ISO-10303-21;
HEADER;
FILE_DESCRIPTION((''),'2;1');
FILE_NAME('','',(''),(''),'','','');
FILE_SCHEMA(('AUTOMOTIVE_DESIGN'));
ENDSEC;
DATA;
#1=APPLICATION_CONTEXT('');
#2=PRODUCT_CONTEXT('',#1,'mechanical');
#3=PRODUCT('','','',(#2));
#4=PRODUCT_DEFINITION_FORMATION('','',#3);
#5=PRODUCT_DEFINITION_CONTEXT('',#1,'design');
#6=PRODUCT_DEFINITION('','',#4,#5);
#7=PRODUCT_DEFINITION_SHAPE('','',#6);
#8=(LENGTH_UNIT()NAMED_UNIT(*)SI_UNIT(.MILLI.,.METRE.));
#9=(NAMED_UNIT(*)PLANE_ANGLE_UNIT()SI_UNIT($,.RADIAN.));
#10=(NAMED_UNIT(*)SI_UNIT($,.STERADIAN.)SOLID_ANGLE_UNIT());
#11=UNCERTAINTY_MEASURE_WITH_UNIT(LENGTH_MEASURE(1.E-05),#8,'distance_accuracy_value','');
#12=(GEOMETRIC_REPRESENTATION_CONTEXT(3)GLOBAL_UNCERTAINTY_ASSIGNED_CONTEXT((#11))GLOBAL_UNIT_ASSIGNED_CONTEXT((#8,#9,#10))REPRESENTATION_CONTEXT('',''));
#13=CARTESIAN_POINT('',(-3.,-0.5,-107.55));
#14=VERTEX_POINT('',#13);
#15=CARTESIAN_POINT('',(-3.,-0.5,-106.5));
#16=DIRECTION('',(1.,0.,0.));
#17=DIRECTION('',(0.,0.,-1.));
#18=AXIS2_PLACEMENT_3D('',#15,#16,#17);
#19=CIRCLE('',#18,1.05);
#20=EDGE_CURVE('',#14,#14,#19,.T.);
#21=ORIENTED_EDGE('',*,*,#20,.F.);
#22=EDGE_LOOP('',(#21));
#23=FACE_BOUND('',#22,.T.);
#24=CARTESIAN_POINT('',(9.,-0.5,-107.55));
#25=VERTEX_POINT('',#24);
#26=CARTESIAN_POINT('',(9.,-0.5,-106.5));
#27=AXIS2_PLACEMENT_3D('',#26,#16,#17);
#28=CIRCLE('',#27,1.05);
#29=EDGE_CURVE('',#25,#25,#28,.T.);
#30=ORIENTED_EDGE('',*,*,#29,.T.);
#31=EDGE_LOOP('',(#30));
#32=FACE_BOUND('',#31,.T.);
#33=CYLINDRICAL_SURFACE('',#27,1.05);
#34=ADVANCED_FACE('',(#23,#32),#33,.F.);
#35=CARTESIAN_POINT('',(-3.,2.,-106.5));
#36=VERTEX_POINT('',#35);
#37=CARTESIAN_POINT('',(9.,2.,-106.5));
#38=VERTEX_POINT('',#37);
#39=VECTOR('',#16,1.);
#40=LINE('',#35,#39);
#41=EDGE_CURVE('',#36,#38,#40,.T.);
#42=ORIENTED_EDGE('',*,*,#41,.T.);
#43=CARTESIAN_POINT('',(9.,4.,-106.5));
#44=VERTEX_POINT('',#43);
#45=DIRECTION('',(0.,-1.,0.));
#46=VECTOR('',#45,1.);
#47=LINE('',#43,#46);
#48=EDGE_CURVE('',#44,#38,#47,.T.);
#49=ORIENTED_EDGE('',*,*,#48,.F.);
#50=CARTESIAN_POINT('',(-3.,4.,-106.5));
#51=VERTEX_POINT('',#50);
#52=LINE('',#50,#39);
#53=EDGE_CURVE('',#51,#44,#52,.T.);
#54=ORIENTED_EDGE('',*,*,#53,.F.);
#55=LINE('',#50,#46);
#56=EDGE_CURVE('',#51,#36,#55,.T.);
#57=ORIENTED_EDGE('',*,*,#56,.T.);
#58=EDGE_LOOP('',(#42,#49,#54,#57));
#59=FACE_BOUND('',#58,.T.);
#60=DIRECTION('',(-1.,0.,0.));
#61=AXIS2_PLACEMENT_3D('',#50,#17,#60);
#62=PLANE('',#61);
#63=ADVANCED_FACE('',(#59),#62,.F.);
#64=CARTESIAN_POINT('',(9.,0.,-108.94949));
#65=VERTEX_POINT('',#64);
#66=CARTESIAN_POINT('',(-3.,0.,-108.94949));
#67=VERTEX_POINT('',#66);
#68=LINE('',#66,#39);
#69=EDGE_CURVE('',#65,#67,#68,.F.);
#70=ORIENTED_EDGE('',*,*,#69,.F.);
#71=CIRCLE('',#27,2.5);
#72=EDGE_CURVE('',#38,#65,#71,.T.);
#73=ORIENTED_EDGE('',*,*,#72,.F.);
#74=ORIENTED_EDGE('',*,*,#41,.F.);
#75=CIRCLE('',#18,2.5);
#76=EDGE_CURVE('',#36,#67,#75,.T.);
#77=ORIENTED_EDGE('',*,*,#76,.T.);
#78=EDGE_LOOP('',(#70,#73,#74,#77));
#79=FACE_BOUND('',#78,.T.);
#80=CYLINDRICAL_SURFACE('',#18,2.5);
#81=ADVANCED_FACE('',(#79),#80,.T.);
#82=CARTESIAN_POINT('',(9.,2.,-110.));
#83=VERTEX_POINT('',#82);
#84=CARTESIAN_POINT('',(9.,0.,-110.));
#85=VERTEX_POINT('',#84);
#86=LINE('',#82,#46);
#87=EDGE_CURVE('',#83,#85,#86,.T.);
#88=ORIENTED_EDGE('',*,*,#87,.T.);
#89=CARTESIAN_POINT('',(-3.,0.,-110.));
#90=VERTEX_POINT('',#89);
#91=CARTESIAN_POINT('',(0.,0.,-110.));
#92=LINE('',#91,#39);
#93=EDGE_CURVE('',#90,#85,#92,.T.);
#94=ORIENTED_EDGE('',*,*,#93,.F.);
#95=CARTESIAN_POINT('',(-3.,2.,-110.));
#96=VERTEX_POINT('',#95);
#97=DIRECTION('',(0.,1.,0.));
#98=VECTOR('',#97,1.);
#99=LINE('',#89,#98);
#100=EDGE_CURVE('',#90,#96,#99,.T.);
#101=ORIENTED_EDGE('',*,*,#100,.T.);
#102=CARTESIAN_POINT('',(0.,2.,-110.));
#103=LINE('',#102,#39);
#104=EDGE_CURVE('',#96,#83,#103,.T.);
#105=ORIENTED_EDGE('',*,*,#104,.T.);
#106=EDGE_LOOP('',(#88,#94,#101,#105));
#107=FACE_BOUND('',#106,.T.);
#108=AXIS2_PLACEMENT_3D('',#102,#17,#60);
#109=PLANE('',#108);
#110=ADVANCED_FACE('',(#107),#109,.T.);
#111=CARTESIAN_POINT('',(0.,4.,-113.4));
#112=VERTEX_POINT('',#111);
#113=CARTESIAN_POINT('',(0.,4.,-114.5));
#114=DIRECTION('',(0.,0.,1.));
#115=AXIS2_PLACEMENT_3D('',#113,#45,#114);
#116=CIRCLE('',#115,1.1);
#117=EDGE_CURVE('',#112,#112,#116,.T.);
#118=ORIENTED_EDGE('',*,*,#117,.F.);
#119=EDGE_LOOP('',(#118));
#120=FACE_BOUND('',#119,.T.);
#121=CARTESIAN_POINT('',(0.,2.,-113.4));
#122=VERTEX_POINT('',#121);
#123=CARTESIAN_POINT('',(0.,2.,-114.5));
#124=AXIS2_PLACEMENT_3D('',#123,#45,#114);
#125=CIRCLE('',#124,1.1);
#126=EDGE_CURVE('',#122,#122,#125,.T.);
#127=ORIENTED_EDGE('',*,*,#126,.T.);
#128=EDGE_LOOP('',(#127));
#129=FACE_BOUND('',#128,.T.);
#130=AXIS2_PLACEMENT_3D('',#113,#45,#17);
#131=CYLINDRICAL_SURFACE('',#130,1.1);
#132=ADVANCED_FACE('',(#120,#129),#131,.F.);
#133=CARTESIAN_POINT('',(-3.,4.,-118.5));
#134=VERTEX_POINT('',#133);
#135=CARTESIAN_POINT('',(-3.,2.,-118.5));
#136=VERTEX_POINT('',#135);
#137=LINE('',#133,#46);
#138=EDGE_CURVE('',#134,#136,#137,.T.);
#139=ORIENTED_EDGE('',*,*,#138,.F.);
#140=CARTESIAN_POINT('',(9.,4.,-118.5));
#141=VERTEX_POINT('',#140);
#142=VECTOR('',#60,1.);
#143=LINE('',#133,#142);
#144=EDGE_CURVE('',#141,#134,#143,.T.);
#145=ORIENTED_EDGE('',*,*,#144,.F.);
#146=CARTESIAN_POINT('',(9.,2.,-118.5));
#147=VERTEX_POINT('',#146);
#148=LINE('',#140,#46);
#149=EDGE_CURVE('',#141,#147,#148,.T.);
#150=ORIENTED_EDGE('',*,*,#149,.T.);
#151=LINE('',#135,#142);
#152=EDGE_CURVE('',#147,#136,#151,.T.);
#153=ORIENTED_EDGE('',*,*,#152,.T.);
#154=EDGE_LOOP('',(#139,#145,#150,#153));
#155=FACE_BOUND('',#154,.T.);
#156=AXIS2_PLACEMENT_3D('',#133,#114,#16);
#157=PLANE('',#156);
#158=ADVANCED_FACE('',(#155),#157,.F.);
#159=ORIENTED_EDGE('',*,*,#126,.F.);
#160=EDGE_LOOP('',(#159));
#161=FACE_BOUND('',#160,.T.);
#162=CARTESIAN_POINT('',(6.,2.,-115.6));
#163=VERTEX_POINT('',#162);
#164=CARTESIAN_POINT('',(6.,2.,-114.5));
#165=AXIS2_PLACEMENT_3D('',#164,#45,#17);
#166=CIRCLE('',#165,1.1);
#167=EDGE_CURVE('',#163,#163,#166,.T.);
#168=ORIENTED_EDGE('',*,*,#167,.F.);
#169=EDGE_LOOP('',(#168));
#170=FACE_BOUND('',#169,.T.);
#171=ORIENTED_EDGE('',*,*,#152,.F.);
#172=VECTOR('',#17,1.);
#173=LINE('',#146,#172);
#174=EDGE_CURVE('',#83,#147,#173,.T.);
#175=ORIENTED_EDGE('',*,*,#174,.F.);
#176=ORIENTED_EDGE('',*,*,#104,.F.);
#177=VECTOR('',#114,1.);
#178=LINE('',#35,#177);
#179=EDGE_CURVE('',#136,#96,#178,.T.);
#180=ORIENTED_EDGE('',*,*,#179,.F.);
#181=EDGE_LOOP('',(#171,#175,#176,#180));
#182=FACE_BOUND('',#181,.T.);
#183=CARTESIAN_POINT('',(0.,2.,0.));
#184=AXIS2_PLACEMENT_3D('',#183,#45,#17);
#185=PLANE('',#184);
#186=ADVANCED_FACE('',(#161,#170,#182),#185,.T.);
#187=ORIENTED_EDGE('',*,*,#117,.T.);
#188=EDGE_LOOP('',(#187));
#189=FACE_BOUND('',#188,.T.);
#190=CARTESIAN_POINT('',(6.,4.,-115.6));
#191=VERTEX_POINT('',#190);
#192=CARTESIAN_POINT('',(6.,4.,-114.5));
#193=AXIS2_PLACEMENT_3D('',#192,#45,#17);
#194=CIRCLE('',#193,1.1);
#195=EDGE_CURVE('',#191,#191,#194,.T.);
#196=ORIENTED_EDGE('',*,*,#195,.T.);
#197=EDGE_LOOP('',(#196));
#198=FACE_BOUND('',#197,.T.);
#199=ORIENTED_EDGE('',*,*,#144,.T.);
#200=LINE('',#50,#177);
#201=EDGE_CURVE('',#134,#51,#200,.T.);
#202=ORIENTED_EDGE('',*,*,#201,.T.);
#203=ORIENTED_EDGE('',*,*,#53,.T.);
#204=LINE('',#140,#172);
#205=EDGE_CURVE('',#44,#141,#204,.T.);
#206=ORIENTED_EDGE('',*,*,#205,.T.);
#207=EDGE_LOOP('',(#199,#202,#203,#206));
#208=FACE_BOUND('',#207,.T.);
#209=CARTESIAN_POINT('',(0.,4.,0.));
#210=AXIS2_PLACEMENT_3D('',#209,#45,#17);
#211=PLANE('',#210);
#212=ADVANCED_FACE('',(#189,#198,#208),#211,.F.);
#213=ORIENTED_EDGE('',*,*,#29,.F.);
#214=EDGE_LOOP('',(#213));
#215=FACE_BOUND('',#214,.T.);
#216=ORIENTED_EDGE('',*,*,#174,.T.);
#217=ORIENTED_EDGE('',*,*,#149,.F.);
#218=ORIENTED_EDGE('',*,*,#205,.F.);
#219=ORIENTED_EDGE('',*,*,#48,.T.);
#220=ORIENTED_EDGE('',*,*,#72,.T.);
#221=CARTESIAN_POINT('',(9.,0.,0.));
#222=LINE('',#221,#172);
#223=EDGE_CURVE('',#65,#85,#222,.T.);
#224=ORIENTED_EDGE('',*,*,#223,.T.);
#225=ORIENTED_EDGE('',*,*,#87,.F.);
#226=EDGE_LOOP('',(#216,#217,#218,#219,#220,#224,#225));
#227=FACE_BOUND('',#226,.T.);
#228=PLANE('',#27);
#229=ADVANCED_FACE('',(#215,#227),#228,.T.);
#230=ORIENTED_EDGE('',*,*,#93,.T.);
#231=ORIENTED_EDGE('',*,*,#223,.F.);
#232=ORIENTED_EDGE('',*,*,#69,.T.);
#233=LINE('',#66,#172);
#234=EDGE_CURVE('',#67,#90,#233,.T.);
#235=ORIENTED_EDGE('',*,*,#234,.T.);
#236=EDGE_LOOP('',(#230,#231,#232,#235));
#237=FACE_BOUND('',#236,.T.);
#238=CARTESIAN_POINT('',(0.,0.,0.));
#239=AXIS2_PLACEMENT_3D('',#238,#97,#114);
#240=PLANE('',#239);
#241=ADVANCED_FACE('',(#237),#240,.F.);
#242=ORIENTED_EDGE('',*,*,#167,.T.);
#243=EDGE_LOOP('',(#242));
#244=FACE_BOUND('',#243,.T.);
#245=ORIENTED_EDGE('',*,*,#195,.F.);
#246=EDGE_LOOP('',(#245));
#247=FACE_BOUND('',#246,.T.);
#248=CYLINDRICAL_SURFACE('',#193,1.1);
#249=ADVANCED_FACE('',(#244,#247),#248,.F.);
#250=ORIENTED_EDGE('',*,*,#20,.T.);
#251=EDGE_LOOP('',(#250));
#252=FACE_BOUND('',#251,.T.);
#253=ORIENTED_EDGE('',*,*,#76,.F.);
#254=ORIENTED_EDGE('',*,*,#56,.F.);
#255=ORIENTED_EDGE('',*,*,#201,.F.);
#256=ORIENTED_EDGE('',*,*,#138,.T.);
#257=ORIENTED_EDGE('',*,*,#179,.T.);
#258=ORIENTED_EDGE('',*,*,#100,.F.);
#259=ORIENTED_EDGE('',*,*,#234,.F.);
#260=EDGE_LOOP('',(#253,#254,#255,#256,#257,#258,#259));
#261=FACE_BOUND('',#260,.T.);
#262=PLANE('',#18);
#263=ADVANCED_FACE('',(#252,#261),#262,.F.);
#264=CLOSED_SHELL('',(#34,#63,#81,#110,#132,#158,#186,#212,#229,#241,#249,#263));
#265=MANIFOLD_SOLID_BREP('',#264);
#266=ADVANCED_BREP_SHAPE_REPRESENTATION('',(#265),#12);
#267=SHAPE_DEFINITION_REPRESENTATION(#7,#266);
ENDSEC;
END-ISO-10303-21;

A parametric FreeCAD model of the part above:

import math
import FreeCAD as App
import Part
import Sketcher

V = App.Vector
Q = App.Units.Quantity

doc = App.newDocument("Part")
body = doc.addObject("PartDesign::Body", "Body")

# Sketch on XZ plane
sketch1 = body.newObject("Sketcher::SketchObject", "Sketch")
sketch1.AttachmentSupport = (doc.getObject("XZ_Plane"), [""])
sketch1.MapMode = "FlatFace"
sketch1.addGeometry([
    Part.LineSegment(V(21.5, 0, 0), V(21.5, -110, 0)),  # 0
    Part.LineSegment(V(21.5, -110, 0), V(9, -110, 0)),  # 1
    Part.LineSegment(V(9, -110, 0), V(0, -101, 0)),  # 2
    Part.LineSegment(V(0, -101, 0), V(0, 0, 0)),  # 3
    Part.LineSegment(V(0, 0, 0), V(21.5, 0, 0)),  # 4
    Part.LineSegment(V(15.5, -6, 0), V(6, -6, 0)),  # 5
    Part.LineSegment(V(6, -6, 0), V(6, -19.25, 0)),  # 6
    Part.LineSegment(V(6, -19.25, 0), V(15.5, -19.25, 0)),  # 7
    Part.LineSegment(V(15.5, -19.25, 0), V(15.5, -6, 0)),  # 8
    Part.LineSegment(V(15.5, -31.25, 0), V(6, -31.25, 0)),  # 9
    Part.LineSegment(V(6, -31.25, 0), V(6, -44.5, 0)),  # 10
    Part.LineSegment(V(6, -44.5, 0), V(15.5, -44.5, 0)),  # 11
    Part.LineSegment(V(15.5, -44.5, 0), V(15.5, -31.25, 0)),  # 12
    Part.LineSegment(V(15.5, -56.5, 0), V(6, -56.5, 0)),  # 13
    Part.LineSegment(V(6, -56.5, 0), V(6, -69.75, 0)),  # 14
    Part.LineSegment(V(6, -69.75, 0), V(15.5, -69.75, 0)),  # 15
    Part.LineSegment(V(15.5, -69.75, 0), V(15.5, -56.5, 0)),  # 16
    Part.LineSegment(V(15.5, -81.75, 0), V(6, -81.75, 0)),  # 17
    Part.LineSegment(V(6, -81.75, 0), V(6, -95, 0)),  # 18
    Part.LineSegment(V(6, -95, 0), V(15.5, -95, 0)),  # 19
    Part.LineSegment(V(15.5, -95, 0), V(15.5, -81.75, 0)),  # 20
    Part.LineSegment(V(19.12132, -104.87868, 0), V(19.12132, -101, 0)),  # 21
    Part.LineSegment(V(19.12132, -101, 0), V(4.242641, -101, 0)),  # 22
    Part.LineSegment(V(4.242641, -101, 0), V(8.12132, -104.87868, 0)),  # 23
    Part.LineSegment(V(8.12132, -104.87868, 0), V(19.12132, -104.87868, 0)),  # 24
], False)
sketch1.addConstraint([
    Sketcher.Constraint("Coincident", 0, 2, 1, 1),
    Sketcher.Constraint("Coincident", 1, 2, 2, 1),
    Sketcher.Constraint("Coincident", 2, 2, 3, 1),
    Sketcher.Constraint("Coincident", 3, 2, 4, 1),
    Sketcher.Constraint("Coincident", 4, 2, 0, 1),
    Sketcher.Constraint("Coincident", 5, 2, 6, 1),
    Sketcher.Constraint("Coincident", 6, 2, 7, 1),
    Sketcher.Constraint("Coincident", 7, 2, 8, 1),
    Sketcher.Constraint("Coincident", 8, 2, 5, 1),
    Sketcher.Constraint("Coincident", 9, 2, 10, 1),
    Sketcher.Constraint("Coincident", 10, 2, 11, 1),
    Sketcher.Constraint("Coincident", 11, 2, 12, 1),
    Sketcher.Constraint("Coincident", 12, 2, 9, 1),
    Sketcher.Constraint("Coincident", 13, 2, 14, 1),
    Sketcher.Constraint("Coincident", 14, 2, 15, 1),
    Sketcher.Constraint("Coincident", 15, 2, 16, 1),
    Sketcher.Constraint("Coincident", 16, 2, 13, 1),
    Sketcher.Constraint("Coincident", 17, 2, 18, 1),
    Sketcher.Constraint("Coincident", 18, 2, 19, 1),
    Sketcher.Constraint("Coincident", 19, 2, 20, 1),
    Sketcher.Constraint("Coincident", 20, 2, 17, 1),
    Sketcher.Constraint("Coincident", 21, 2, 22, 1),
    Sketcher.Constraint("Coincident", 22, 2, 23, 1),
    Sketcher.Constraint("Coincident", 23, 2, 24, 1),
    Sketcher.Constraint("Coincident", 24, 2, 21, 1),
    Sketcher.Constraint("Vertical", 0),
    Sketcher.Constraint("Horizontal", 1),
    Sketcher.Constraint("Vertical", 3),
    Sketcher.Constraint("Horizontal", 4),
    Sketcher.Constraint("Horizontal", 5),
    Sketcher.Constraint("Vertical", 6),
    Sketcher.Constraint("Horizontal", 7),
    Sketcher.Constraint("Vertical", 8),
    Sketcher.Constraint("Horizontal", 9),
    Sketcher.Constraint("Vertical", 10),
    Sketcher.Constraint("Horizontal", 11),
    Sketcher.Constraint("Vertical", 12),
    Sketcher.Constraint("Horizontal", 13),
    Sketcher.Constraint("Vertical", 14),
    Sketcher.Constraint("Horizontal", 15),
    Sketcher.Constraint("Vertical", 16),
    Sketcher.Constraint("Horizontal", 17),
    Sketcher.Constraint("Vertical", 18),
    Sketcher.Constraint("Horizontal", 19),
    Sketcher.Constraint("Vertical", 20),
    Sketcher.Constraint("Vertical", 21),
    Sketcher.Constraint("Horizontal", 22),
    Sketcher.Constraint("Horizontal", 24),
    Sketcher.Constraint("Coincident", 3, 2, -1, 1),
    Sketcher.Constraint("Parallel", 2, 23),
    Sketcher.Constraint("Horizontal", 2, 2, 21, 2),
    Sketcher.Constraint("Vertical", 6, 2, 9, 2),
    Sketcher.Constraint("Vertical", 8, 2, 11, 2),
    Sketcher.Constraint("Vertical", 10, 2, 13, 2),
    Sketcher.Constraint("Vertical", 12, 2, 15, 2),
    Sketcher.Constraint("Vertical", 14, 2, 17, 2),
    Sketcher.Constraint("Vertical", 16, 2, 19, 2),
    Sketcher.Constraint("Equal", 8, 10),
    Sketcher.Constraint("Equal", 12, 14),
    Sketcher.Constraint("Equal", 16, 18),
    Sketcher.Constraint("DistanceX", 24, 1, 24, 2, 11.0),
    Sketcher.Constraint("DistanceY", 0, 2, 0, 1, 110.0),
    Sketcher.Constraint("DistanceY", 3, 1, 3, 2, 101.0),
    Sketcher.Constraint("Angle", 2, Q("135 deg")),
    Sketcher.Constraint("DistanceX", 1, 2, 1, 1, 12.5),
    Sketcher.Constraint("DistanceX", 5, 2, 5, 1, 9.5),
    Sketcher.Constraint("DistanceX", -1, 1, 5, 2, 6.0),
    Sketcher.Constraint("DistanceY", 5, 2, -1, 1, 6.0),
    Sketcher.Constraint("DistanceY", 18, 2, -1, 1, 95.0),
    Sketcher.Constraint("DistanceY", 9, 2, 6, 2, 12.0),
    Sketcher.Constraint("DistanceY", 13, 2, 10, 2, 12.0),
    Sketcher.Constraint("DistanceY", 17, 2, 14, 2, 12.0),
    Sketcher.Constraint("DistanceX", 22, 2, 22, 1, 14.87868),
    Sketcher.Constraint("DistanceX", -1, 1, 21, 2, 19.12132),
])
pad1 = body.newObject("PartDesign::Pad", "Pad")
pad1.Profile = sketch1
pad1.Length = 2
pad1.Reversed = True

# Sketch on XY plane
sketch2 = body.newObject("Sketcher::SketchObject", "Sketch001")
sketch2.AttachmentSupport = (doc.getObject("XY_Plane"), [""])
sketch2.MapMode = "FlatFace"
sketch2.AttachmentOffset = App.Placement(V(0, 0, -101), App.Rotation())
sketch2.addGeometry([
    Part.LineSegment(V(0, 2, 0), V(0, 0, 0)),
    Part.LineSegment(V(0, 0, 0), V(-3.5, 0, 0)),
    Part.ArcOfCircle(Part.Circle(V(-3.5, 2.5, 0), V(0, 0, 1), 2.5), math.radians(-11.536959), math.radians(270)),
    Part.LineSegment(V(-1.05051, 2, 0), V(0, 2, 0)),
], False)
sketch2.addConstraint([
    Sketcher.Constraint("Coincident", 0, 2, 1, 1),
    Sketcher.Constraint("Tangent", 1, 2, 2, 2),
    Sketcher.Constraint("Coincident", 2, 1, 3, 1),
    Sketcher.Constraint("Coincident", 3, 2, 0, 1),
    Sketcher.Constraint("Vertical", 0),
    Sketcher.Constraint("Horizontal", 1),
    Sketcher.Constraint("Horizontal", 3),
    Sketcher.Constraint("Coincident", 0, 2, -1, 1),
    Sketcher.Constraint("Radius", 2, 2.5),
    Sketcher.Constraint("DistanceY", 0, 2, 0, 1, 2.0),
    Sketcher.Constraint("DistanceX", 1, 2, 1, 1, 3.5),
])
pad2 = body.newObject("PartDesign::Pad", "Pad001")
pad2.Profile = sketch2
pad2.Length = 12
doc.recompute()

linearpattern = body.newObject("PartDesign::LinearPattern", "LinearPattern")
linearpattern.Originals = [pad2]
linearpattern.Direction = (doc.getObject("Z_Axis"), [""])
linearpattern.Mode = "offset"
linearpattern.Offset = 22
linearpattern.Occurrences = 5
body.Tip = linearpattern

# Sketch on XY plane
sketch3 = body.newObject("Sketcher::SketchObject", "Sketch002")
sketch3.AttachmentSupport = (doc.getObject("XY_Plane"), [""])
sketch3.MapMode = "FlatFace"
sketch3.AttachmentOffset = App.Placement(V(0, 0, -101), App.Rotation())
sketch3.addGeometry(Part.Circle(V(-3.5, 2.5, 0), V(0, 0, 1), 1.05), False)
sketch3.addConstraint([
    Sketcher.Constraint("Diameter", 0, 2.1),
    Sketcher.Constraint("DistanceX", 0, 3, -1, 1, 3.5),
    Sketcher.Constraint("DistanceY", -1, 1, 0, 3, 2.5),
])
doc.recompute()
hole = body.newObject("PartDesign::Hole", "Hole")
hole.Profile = sketch3
hole.ThreadType = "None"
hole.Diameter = 2.1
hole.DepthType = "ThroughAll"
hole.Reversed = True

# Sketch on YZ plane
sketch4 = body.newObject("Sketcher::SketchObject", "Sketch003")
sketch4.AttachmentSupport = (doc.getObject("YZ_Plane"), [""])
sketch4.MapMode = "FlatFace"
sketch4.AttachmentOffset = App.Placement(V(0, 0, 9), App.Rotation())
sketch4.addGeometry([
    Part.LineSegment(V(0, -108.94949, 0), V(0, -110, 0)),
    Part.LineSegment(V(0, -110, 0), V(2, -110, 0)),
    Part.LineSegment(V(2, -110, 0), V(2, -106.5, 0)),
    Part.ArcOfCircle(Part.Circle(V(-0.5, -106.5, 0), V(0, 0, 1), 2.5), math.radians(0), math.radians(281.536959)),
], False)
sketch4.addConstraint([
    Sketcher.Constraint("Coincident", 0, 2, 1, 1),
    Sketcher.Constraint("Coincident", 1, 2, 2, 1),
    Sketcher.Constraint("Tangent", 2, 2, 3, 1),
    Sketcher.Constraint("Coincident", 3, 2, 0, 1),
    Sketcher.Constraint("Vertical", 0),
    Sketcher.Constraint("Horizontal", 1),
    Sketcher.Constraint("Vertical", 2),
    Sketcher.Constraint("PointOnObject", 0, 2, -2),
    Sketcher.Constraint("Radius", 3, 2.5),
    Sketcher.Constraint("DistanceX", 1, 1, 1, 2, 2.0),
    Sketcher.Constraint("DistanceY", 2, 1, 2, 2, 3.5),
    Sketcher.Constraint("DistanceY", 0, 2, -1, 1, 110.0),
])
pad3 = body.newObject("PartDesign::Pad", "Pad002")
pad3.Profile = sketch4
pad3.Length = 12
pad3.Reversed = True

# Sketch on XZ plane
sketch5 = body.newObject("Sketcher::SketchObject", "Sketch004")
sketch5.AttachmentSupport = (doc.getObject("XZ_Plane"), [""])
sketch5.MapMode = "FlatFace"
sketch5.AttachmentOffset = App.Placement(V(0, 0, 0.5), App.Rotation())
sketch5.addGeometry([
    Part.LineSegment(V(-6, -106.5, 0), V(9, -106.5, 0)),
    Part.LineSegment(V(9, -106.5, 0), V(9, -107.55, 0)),
    Part.LineSegment(V(9, -107.55, 0), V(-6, -107.55, 0)),
    Part.LineSegment(V(-6, -107.55, 0), V(-6, -106.5, 0)),
], False)
sketch5.addGeometry(Part.LineSegment(V(9, -106.5, 0), V(-6, -106.5, 0)), True)  # axis
sketch5.addConstraint([
    Sketcher.Constraint("Coincident", 0, 2, 1, 1),
    Sketcher.Constraint("Coincident", 1, 2, 2, 1),
    Sketcher.Constraint("Coincident", 2, 2, 3, 1),
    Sketcher.Constraint("Coincident", 3, 2, 0, 1),
    Sketcher.Constraint("Horizontal", 0),
    Sketcher.Constraint("Vertical", 1),
    Sketcher.Constraint("Horizontal", 2),
    Sketcher.Constraint("Vertical", 3),
    Sketcher.Constraint("Horizontal", 4),
    Sketcher.Constraint("Coincident", 4, 1, 0, 2),
    Sketcher.Constraint("Vertical", 2, 2, 4, 2),
    Sketcher.Constraint("DistanceX", 0, 1, 0, 2, 15.0),
    Sketcher.Constraint("DistanceX", -1, 1, 0, 2, 9.0),
    Sketcher.Constraint("DistanceY", 1, 2, 1, 1, 1.05),
    Sketcher.Constraint("DistanceY", 0, 2, -1, 1, 106.5),
])
groove = body.newObject("PartDesign::Groove", "Groove")
groove.Profile = sketch5
groove.ReferenceAxis = (sketch5, ["Axis0"])
groove.Angle = 360

# Sketch on XY plane
sketch6 = body.newObject("Sketcher::SketchObject", "Sketch005")
sketch6.AttachmentSupport = (doc.getObject("XY_Plane"), [""])
sketch6.MapMode = "FlatFace"
sketch6.addGeometry([
    Part.ArcOfCircle(Part.Circle(V(31.5, 7, 0), V(0, 0, 1), 7), math.radians(-90), math.radians(-45)),  # 0
    Part.LineSegment(V(36.449747, 2.050253, 0), V(39.577164, 5.17767, 0)),  # 1
    Part.ArcOfCircle(Part.Circle(V(57.254834, -12.5, 0), V(0, 0, 1), 25), math.radians(45), math.radians(135)),  # 2
    Part.LineSegment(V(74.932504, 5.17767, 0), V(76.346717, 6.591883, 0)),  # 3
    Part.ArcOfCircle(Part.Circle(V(57.254834, -12.5, 0), V(0, 0, 1), 27), math.radians(45), math.radians(135)),  # 4
    Part.LineSegment(V(38.162951, 6.591883, 0), V(35.035534, 3.464466, 0)),  # 5
    Part.ArcOfCircle(Part.Circle(V(31.5, 7, 0), V(0, 0, 1), 5), math.radians(-90), math.radians(-45)),  # 6
    Part.LineSegment(V(31.5, 2, 0), V(21.5, 2, 0)),  # 7
    Part.LineSegment(V(21.5, 2, 0), V(21.5, 0, 0)),  # 8
    Part.LineSegment(V(21.5, 0, 0), V(31.5, 0, 0)),  # 9
], False)
sketch6.addConstraint([
    Sketcher.Constraint("Tangent", 0, 2, 1, 1),
    Sketcher.Constraint("Tangent", 1, 2, 2, 2),
    Sketcher.Constraint("Coincident", 2, 1, 3, 1),
    Sketcher.Constraint("Coincident", 3, 2, 4, 1),
    Sketcher.Constraint("Tangent", 4, 2, 5, 1),
    Sketcher.Constraint("Tangent", 5, 2, 6, 2),
    Sketcher.Constraint("Tangent", 6, 1, 7, 1),
    Sketcher.Constraint("Coincident", 7, 2, 8, 1),
    Sketcher.Constraint("Coincident", 8, 2, 9, 1),
    Sketcher.Constraint("Tangent", 9, 2, 0, 1),
    Sketcher.Constraint("Horizontal", 7),
    Sketcher.Constraint("Vertical", 8),
    Sketcher.Constraint("Horizontal", 9),
    Sketcher.Constraint("Coincident", 4, 3, 2, 3),
    Sketcher.Constraint("Coincident", 6, 3, 0, 3),
    Sketcher.Constraint("PointOnObject", 8, 2, -1),
    Sketcher.Constraint("Parallel", 1, 3),
    Sketcher.Constraint("Parallel", 3, 5),
    Sketcher.Constraint("Horizontal", 1, 2, 2, 1),
    Sketcher.Constraint("Horizontal", 3, 2, 4, 2),
    Sketcher.Constraint("Radius", 0, 7.0),
    Sketcher.Constraint("Radius", 2, 25.0),
    Sketcher.Constraint("Radius", 4, 27.0),
    Sketcher.Constraint("DistanceX", 7, 2, 7, 1, 10.0),
    Sketcher.Constraint("DistanceX", -1, 1, 0, 3, 31.5),
    Sketcher.Constraint("DistanceY", 2, 3, -1, 1, 12.5),
])
pad4 = body.newObject("PartDesign::Pad", "Pad003")
pad4.Profile = sketch6
pad4.Length = 110
pad4.Reversed = True

# Sketch on an angled plane
sketch7 = body.newObject("Sketcher::SketchObject", "Sketch006")
sketch7.Placement = App.Placement(V(11.914665, 32.735272, 0), App.Rotation(V(0.939692621, -0.342020143, 0), V(0, 0, -1), V(0.342020143, 0.939692621, 0), "ZXY"))
sketch7.addGeometry(Part.Circle(V(58.077197, 5, 0), V(0, 0, 1), 1), False)
sketch7.addConstraint([
    Sketcher.Constraint("Diameter", 0, 2.0),
    Sketcher.Constraint("DistanceY", -1, 1, 0, 3, 5.0),
    Sketcher.Constraint("DistanceX", -1, 1, 0, 3, 58.077197),
])
doc.recompute()
hole2 = body.newObject("PartDesign::Hole", "Hole001")
hole2.Profile = sketch7
hole2.ThreadType = "None"
hole2.Diameter = 2
hole2.DepthType = "ThroughAll"

# Sketch on an angled plane
sketch8 = body.newObject("Sketcher::SketchObject", "Sketch007")
sketch8.Placement = App.Placement(V(11.914651, 32.735261, 0), App.Rotation(V(0.939692711, -0.342019895, 0), V(0, 0, -1), V(0.342019895, 0.939692711, 0), "ZXY"))
sketch8.addGeometry(Part.Circle(V(58.077206, 52, 0), V(0, 0, 1), 1), False)
sketch8.addConstraint([
    Sketcher.Constraint("Diameter", 0, 2.0),
    Sketcher.Constraint("DistanceY", -1, 1, 0, 3, 52.0),
    Sketcher.Constraint("DistanceX", -1, 1, 0, 3, 58.077206),
])
doc.recompute()
hole3 = body.newObject("PartDesign::Hole", "Hole002")
hole3.Profile = sketch8
hole3.ThreadType = "None"
hole3.Diameter = 2
hole3.DepthType = "ThroughAll"

# Sketch on XZ plane
sketch9 = body.newObject("Sketcher::SketchObject", "Sketch008")
sketch9.AttachmentSupport = (doc.getObject("XZ_Plane"), [""])
sketch9.MapMode = "FlatFace"
sketch9.AttachmentOffset = App.Placement(V(0, 0, -2), App.Rotation())
sketch9.addGeometry([
    Part.BSplineCurve([V(65.543349, -5, 0), V(65.543349, -4.867858, 0), V(65.568139, -4.738193, 0), V(65.663651, -4.495994, 0), V(65.734288, -4.385069, 0), V(65.909329, -4.200588, 0), V(66.014985, -4.126086, 0), V(66.242292, -4.026337, 0), V(66.366299, -4.00007, 0), V(66.611455, -3.999931, 0), V(66.734293, -4.025809, 0), V(66.96067, -4.125924, 0), V(67.063423, -4.199244, 0), V(67.237262, -4.385832, 0), V(67.305425, -4.495896, 0), V(67.398649, -4.73824, 0), V(67.422692, -4.86912, 0), V(67.422778, -5.130169, 0), V(67.398544, -5.261725, 0), V(67.306169, -5.502477, 0), V(67.237041, -5.614131, 0), V(67.065582, -5.79871, 0), V(66.9621, -5.873181, 0), V(66.73603, -5.973682, 0), V(66.614281, -5.999866, 0), V(66.366377, -6.000133, 0), V(66.244029, -5.974292, 0), V(66.014886, -5.874003, 0), V(65.909922, -5.799907, 0), V(65.647004, -5.523198, 0), V(65.543349, -5.264284, 0), V(65.543349, -5, 0)], [4, 2, 2, 2, 2, 2, 2, 2, 2, 2, 2, 2, 2, 2, 2, 4], [0, 0.0625, 0.125, 0.1875, 0.25, 0.3125, 0.375, 0.4375, 0.5, 0.5625, 0.625, 0.6875, 0.75, 0.8125, 0.875, 1], False, 3, [1, 1, 1, 1, 1, 1, 1, 1, 1, 1, 1, 1, 1, 1, 1, 1, 1, 1, 1, 1, 1, 1, 1, 1, 1, 1, 1, 1, 1, 1, 1, 1], False),  # 0
    Part.LineSegment(V(20.5, -18, 0), V(20.5, -10, 0)),  # 1
    Part.LineSegment(V(20.5, -10, 0), V(73.346717, -10, 0)),  # 2
    Part.LineSegment(V(73.346717, -10, 0), V(73.346717, -18, 0)),  # 3
    Part.LineSegment(V(73.346717, -18, 0), V(20.5, -18, 0)),  # 4
    Part.LineSegment(V(20.5, -65, 0), V(20.5, -57, 0)),  # 5
    Part.LineSegment(V(20.5, -57, 0), V(73.346717, -57, 0)),  # 6
    Part.LineSegment(V(73.346717, -57, 0), V(73.346717, -65, 0)),  # 7
    Part.LineSegment(V(73.346717, -65, 0), V(20.5, -65, 0)),  # 8
], False)
sketch9.addConstraint([
    Sketcher.Constraint("Block", 0),
    Sketcher.Constraint("Coincident", 1, 2, 2, 1),
    Sketcher.Constraint("Coincident", 2, 2, 3, 1),
    Sketcher.Constraint("Coincident", 3, 2, 4, 1),
    Sketcher.Constraint("Coincident", 4, 2, 1, 1),
    Sketcher.Constraint("Coincident", 5, 2, 6, 1),
    Sketcher.Constraint("Coincident", 6, 2, 7, 1),
    Sketcher.Constraint("Coincident", 7, 2, 8, 1),
    Sketcher.Constraint("Coincident", 8, 2, 5, 1),
    Sketcher.Constraint("Vertical", 1),
    Sketcher.Constraint("Horizontal", 2),
    Sketcher.Constraint("Vertical", 3),
    Sketcher.Constraint("Horizontal", 4),
    Sketcher.Constraint("Vertical", 5),
    Sketcher.Constraint("Horizontal", 6),
    Sketcher.Constraint("Vertical", 7),
    Sketcher.Constraint("Horizontal", 8),
    Sketcher.Constraint("Vertical", 4, 2, 5, 2),
    Sketcher.Constraint("Vertical", 3, 2, 6, 2),
    Sketcher.Constraint("Equal", 3, 5),
    Sketcher.Constraint("DistanceY", 1, 1, 1, 2, 8.0),
    Sketcher.Constraint("DistanceY", 1, 2, -1, 1, 10.0),
    Sketcher.Constraint("DistanceY", 5, 2, -1, 1, 57.0),
    Sketcher.Constraint("DistanceX", -1, 1, 1, 2, 20.5),
    Sketcher.Constraint("DistanceX", 2, 1, 2, 2, 52.846717),
])
pocket1 = body.newObject("PartDesign::Pocket", "Pocket")
pocket1.Profile = sketch9
pocket1.Type = "ThroughAll"
pocket1.Midplane = True

# Sketch on XZ plane
sketch10 = body.newObject("Sketcher::SketchObject", "Sketch009")
sketch10.AttachmentSupport = (doc.getObject("XZ_Plane"), [""])
sketch10.MapMode = "FlatFace"
sketch10.AttachmentOffset = App.Placement(V(0, 0, -2), App.Rotation())
sketch10.addGeometry([
    Part.LineSegment(V(-3, -118.5, 0), V(-3, -106.5, 0)),
    Part.LineSegment(V(-3, -106.5, 0), V(9, -106.5, 0)),
    Part.LineSegment(V(9, -106.5, 0), V(9, -118.5, 0)),
    Part.LineSegment(V(9, -118.5, 0), V(-3, -118.5, 0)),
], False)
sketch10.addConstraint([
    Sketcher.Constraint("Coincident", 0, 2, 1, 1),
    Sketcher.Constraint("Coincident", 1, 2, 2, 1),
    Sketcher.Constraint("Coincident", 2, 2, 3, 1),
    Sketcher.Constraint("Coincident", 3, 2, 0, 1),
    Sketcher.Constraint("Vertical", 0),
    Sketcher.Constraint("Horizontal", 1),
    Sketcher.Constraint("Vertical", 2),
    Sketcher.Constraint("Horizontal", 3),
    Sketcher.Constraint("Equal", 3, 0),
    Sketcher.Constraint("DistanceX", 1, 1, 1, 2, 12.0),
    Sketcher.Constraint("DistanceX", 0, 2, -1, 1, 3.0),
    Sketcher.Constraint("DistanceY", 0, 2, -1, 1, 106.5),
])
pad5 = body.newObject("PartDesign::Pad", "Pad004")
pad5.Profile = sketch10
pad5.Length = 2
pad5.Reversed = True

# Sketch on XZ plane
sketch11 = body.newObject("Sketcher::SketchObject", "Sketch010")
sketch11.AttachmentSupport = (doc.getObject("XZ_Plane"), [""])
sketch11.MapMode = "FlatFace"
sketch11.AttachmentOffset = App.Placement(V(0, 0, -2), App.Rotation())
sketch11.addGeometry([
    Part.Circle(V(6, -114.5, 0), V(0, 0, 1), 1.1),
    Part.Circle(V(0, -114.5, 0), V(0, 0, 1), 1.1),
], False)
sketch11.addConstraint([
    Sketcher.Constraint("Equal", 0, 1),
    Sketcher.Constraint("PointOnObject", 1, 3, -2),
    Sketcher.Constraint("Horizontal", 0, 3, 1, 3),
    Sketcher.Constraint("Diameter", 0, 2.2),
    Sketcher.Constraint("DistanceX", -1, 1, 0, 3, 6.0),
    Sketcher.Constraint("DistanceY", 0, 3, -1, 1, 114.5),
])
pocket2 = body.newObject("PartDesign::Pocket", "Pocket001")
pocket2.Profile = sketch11
pocket2.Length = 2

# Sketch on XZ plane
sketch12 = body.newObject("Sketcher::SketchObject", "Sketch011")
sketch12.AttachmentSupport = (doc.getObject("XZ_Plane"), [""])
sketch12.MapMode = "FlatFace"
sketch12.AttachmentOffset = App.Placement(V(0, 0, -2), App.Rotation())
sketch12.addGeometry([
    Part.LineSegment(V(-6, -101, 0), V(-6, 7.553419, 0)),
    Part.LineSegment(V(-6, 7.553419, 0), V(118.248357, 7.553419, 0)),
    Part.LineSegment(V(118.248357, 7.553419, 0), V(118.248357, -101, 0)),
    Part.LineSegment(V(118.248357, -101, 0), V(-6, -101, 0)),
], False)
sketch12.addConstraint([
    Sketcher.Constraint("Coincident", 0, 2, 1, 1),
    Sketcher.Constraint("Coincident", 1, 2, 2, 1),
    Sketcher.Constraint("Coincident", 2, 2, 3, 1),
    Sketcher.Constraint("Coincident", 3, 2, 0, 1),
    Sketcher.Constraint("Vertical", 0),
    Sketcher.Constraint("Horizontal", 1),
    Sketcher.Constraint("Vertical", 2),
    Sketcher.Constraint("Horizontal", 3),
    Sketcher.Constraint("DistanceX", 0, 2, -1, 1, 6.0),
    Sketcher.Constraint("DistanceY", 2, 2, -1, 1, 101.0),
    Sketcher.Constraint("DistanceY", 0, 1, 0, 2, 108.553419),
    Sketcher.Constraint("DistanceX", 1, 1, 1, 2, 124.248357),
])
pocket3 = body.newObject("PartDesign::Pocket", "Pocket002")
pocket3.Profile = sketch12
pocket3.Type = "ThroughAll"
pocket3.Midplane = True

# Sketch on YZ plane
sketch13 = body.newObject("Sketcher::SketchObject", "Sketch012")
sketch13.AttachmentSupport = (doc.getObject("YZ_Plane"), [""])
sketch13.MapMode = "FlatFace"
sketch13.AttachmentOffset = App.Placement(V(0, 0, 87), App.Rotation())
sketch13.addGeometry([
    Part.LineSegment(V(4, -106.5, 0), V(2, -106.5, 0)),  # 0
    Part.ArcOfCircle(Part.Circle(V(-0.5, -106.5, 0), V(0, 0, 1), 2.5), math.radians(0), math.radians(78.463041)),  # 1
    Part.LineSegment(V(0, -104.05051, 0), V(0, -101, 0)),  # 2
    Part.LineSegment(V(0, -101, 0), V(14.5, -101, 0)),  # 3
    Part.LineSegment(V(14.5, -101, 0), V(14.5, -110, 0)),  # 4
    Part.LineSegment(V(14.5, -110, 0), V(4, -110, 0)),  # 5
    Part.LineSegment(V(4, -110, 0), V(4, -106.5, 0)),  # 6
], False)
sketch13.addConstraint([
    Sketcher.Constraint("Coincident", 0, 2, 1, 1),
    Sketcher.Constraint("Coincident", 1, 2, 2, 1),
    Sketcher.Constraint("Coincident", 2, 2, 3, 1),
    Sketcher.Constraint("Coincident", 3, 2, 4, 1),
    Sketcher.Constraint("Coincident", 4, 2, 5, 1),
    Sketcher.Constraint("Coincident", 5, 2, 6, 1),
    Sketcher.Constraint("Coincident", 6, 2, 0, 1),
    Sketcher.Constraint("Horizontal", 0),
    Sketcher.Constraint("Vertical", 2),
    Sketcher.Constraint("Horizontal", 3),
    Sketcher.Constraint("Vertical", 4),
    Sketcher.Constraint("Horizontal", 5),
    Sketcher.Constraint("Vertical", 6),
    Sketcher.Constraint("PointOnObject", 1, 2, -2),
    Sketcher.Constraint("Horizontal", 1, 3, 0, 2),
    Sketcher.Constraint("Radius", 1, 2.5),
    Sketcher.Constraint("DistanceX", 0, 2, 0, 1, 2.0),
    Sketcher.Constraint("DistanceY", 4, 2, 4, 1, 9.0),
    Sketcher.Constraint("DistanceX", 3, 1, 3, 2, 14.5),
    Sketcher.Constraint("DistanceX", 5, 2, 5, 1, 10.5),
    Sketcher.Constraint("DistanceY", 6, 1, 6, 2, 3.5),
    Sketcher.Constraint("DistanceY", 2, 2, -1, 1, 101.0),
])
pocket4 = body.newObject("PartDesign::Pocket", "Pocket003")
pocket4.Profile = sketch13
pocket4.Length = 90

# Sketch on XZ plane
sketch14 = body.newObject("Sketcher::SketchObject", "Sketch013")
sketch14.AttachmentSupport = (doc.getObject("XZ_Plane"), [""])
sketch14.MapMode = "FlatFace"
sketch14.AttachmentOffset = App.Placement(V(0, 0, -4), App.Rotation())
sketch14.addGeometry([
    Part.LineSegment(V(9, -118.5, 0), V(9, -97.529511, 0)),
    Part.LineSegment(V(9, -97.529511, 0), V(43.927969, -97.529511, 0)),
    Part.LineSegment(V(43.927969, -97.529511, 0), V(43.927969, -118.5, 0)),
    Part.LineSegment(V(43.927969, -118.5, 0), V(9, -118.5, 0)),
], False)
sketch14.addConstraint([
    Sketcher.Constraint("Coincident", 0, 2, 1, 1),
    Sketcher.Constraint("Coincident", 1, 2, 2, 1),
    Sketcher.Constraint("Coincident", 2, 2, 3, 1),
    Sketcher.Constraint("Coincident", 3, 2, 0, 1),
    Sketcher.Constraint("Vertical", 0),
    Sketcher.Constraint("Horizontal", 1),
    Sketcher.Constraint("Vertical", 2),
    Sketcher.Constraint("Horizontal", 3),
    Sketcher.Constraint("DistanceX", -1, 1, 0, 2, 9.0),
    Sketcher.Constraint("DistanceY", 2, 2, -1, 1, 118.5),
    Sketcher.Constraint("DistanceX", 1, 1, 1, 2, 34.927969),
    Sketcher.Constraint("DistanceY", 0, 1, 0, 2, 20.970489),
])
pocket5 = body.newObject("PartDesign::Pocket", "Pocket004")
pocket5.Profile = sketch14
pocket5.Type = "ThroughAll"
pocket5.Midplane = True

doc.recompute()
